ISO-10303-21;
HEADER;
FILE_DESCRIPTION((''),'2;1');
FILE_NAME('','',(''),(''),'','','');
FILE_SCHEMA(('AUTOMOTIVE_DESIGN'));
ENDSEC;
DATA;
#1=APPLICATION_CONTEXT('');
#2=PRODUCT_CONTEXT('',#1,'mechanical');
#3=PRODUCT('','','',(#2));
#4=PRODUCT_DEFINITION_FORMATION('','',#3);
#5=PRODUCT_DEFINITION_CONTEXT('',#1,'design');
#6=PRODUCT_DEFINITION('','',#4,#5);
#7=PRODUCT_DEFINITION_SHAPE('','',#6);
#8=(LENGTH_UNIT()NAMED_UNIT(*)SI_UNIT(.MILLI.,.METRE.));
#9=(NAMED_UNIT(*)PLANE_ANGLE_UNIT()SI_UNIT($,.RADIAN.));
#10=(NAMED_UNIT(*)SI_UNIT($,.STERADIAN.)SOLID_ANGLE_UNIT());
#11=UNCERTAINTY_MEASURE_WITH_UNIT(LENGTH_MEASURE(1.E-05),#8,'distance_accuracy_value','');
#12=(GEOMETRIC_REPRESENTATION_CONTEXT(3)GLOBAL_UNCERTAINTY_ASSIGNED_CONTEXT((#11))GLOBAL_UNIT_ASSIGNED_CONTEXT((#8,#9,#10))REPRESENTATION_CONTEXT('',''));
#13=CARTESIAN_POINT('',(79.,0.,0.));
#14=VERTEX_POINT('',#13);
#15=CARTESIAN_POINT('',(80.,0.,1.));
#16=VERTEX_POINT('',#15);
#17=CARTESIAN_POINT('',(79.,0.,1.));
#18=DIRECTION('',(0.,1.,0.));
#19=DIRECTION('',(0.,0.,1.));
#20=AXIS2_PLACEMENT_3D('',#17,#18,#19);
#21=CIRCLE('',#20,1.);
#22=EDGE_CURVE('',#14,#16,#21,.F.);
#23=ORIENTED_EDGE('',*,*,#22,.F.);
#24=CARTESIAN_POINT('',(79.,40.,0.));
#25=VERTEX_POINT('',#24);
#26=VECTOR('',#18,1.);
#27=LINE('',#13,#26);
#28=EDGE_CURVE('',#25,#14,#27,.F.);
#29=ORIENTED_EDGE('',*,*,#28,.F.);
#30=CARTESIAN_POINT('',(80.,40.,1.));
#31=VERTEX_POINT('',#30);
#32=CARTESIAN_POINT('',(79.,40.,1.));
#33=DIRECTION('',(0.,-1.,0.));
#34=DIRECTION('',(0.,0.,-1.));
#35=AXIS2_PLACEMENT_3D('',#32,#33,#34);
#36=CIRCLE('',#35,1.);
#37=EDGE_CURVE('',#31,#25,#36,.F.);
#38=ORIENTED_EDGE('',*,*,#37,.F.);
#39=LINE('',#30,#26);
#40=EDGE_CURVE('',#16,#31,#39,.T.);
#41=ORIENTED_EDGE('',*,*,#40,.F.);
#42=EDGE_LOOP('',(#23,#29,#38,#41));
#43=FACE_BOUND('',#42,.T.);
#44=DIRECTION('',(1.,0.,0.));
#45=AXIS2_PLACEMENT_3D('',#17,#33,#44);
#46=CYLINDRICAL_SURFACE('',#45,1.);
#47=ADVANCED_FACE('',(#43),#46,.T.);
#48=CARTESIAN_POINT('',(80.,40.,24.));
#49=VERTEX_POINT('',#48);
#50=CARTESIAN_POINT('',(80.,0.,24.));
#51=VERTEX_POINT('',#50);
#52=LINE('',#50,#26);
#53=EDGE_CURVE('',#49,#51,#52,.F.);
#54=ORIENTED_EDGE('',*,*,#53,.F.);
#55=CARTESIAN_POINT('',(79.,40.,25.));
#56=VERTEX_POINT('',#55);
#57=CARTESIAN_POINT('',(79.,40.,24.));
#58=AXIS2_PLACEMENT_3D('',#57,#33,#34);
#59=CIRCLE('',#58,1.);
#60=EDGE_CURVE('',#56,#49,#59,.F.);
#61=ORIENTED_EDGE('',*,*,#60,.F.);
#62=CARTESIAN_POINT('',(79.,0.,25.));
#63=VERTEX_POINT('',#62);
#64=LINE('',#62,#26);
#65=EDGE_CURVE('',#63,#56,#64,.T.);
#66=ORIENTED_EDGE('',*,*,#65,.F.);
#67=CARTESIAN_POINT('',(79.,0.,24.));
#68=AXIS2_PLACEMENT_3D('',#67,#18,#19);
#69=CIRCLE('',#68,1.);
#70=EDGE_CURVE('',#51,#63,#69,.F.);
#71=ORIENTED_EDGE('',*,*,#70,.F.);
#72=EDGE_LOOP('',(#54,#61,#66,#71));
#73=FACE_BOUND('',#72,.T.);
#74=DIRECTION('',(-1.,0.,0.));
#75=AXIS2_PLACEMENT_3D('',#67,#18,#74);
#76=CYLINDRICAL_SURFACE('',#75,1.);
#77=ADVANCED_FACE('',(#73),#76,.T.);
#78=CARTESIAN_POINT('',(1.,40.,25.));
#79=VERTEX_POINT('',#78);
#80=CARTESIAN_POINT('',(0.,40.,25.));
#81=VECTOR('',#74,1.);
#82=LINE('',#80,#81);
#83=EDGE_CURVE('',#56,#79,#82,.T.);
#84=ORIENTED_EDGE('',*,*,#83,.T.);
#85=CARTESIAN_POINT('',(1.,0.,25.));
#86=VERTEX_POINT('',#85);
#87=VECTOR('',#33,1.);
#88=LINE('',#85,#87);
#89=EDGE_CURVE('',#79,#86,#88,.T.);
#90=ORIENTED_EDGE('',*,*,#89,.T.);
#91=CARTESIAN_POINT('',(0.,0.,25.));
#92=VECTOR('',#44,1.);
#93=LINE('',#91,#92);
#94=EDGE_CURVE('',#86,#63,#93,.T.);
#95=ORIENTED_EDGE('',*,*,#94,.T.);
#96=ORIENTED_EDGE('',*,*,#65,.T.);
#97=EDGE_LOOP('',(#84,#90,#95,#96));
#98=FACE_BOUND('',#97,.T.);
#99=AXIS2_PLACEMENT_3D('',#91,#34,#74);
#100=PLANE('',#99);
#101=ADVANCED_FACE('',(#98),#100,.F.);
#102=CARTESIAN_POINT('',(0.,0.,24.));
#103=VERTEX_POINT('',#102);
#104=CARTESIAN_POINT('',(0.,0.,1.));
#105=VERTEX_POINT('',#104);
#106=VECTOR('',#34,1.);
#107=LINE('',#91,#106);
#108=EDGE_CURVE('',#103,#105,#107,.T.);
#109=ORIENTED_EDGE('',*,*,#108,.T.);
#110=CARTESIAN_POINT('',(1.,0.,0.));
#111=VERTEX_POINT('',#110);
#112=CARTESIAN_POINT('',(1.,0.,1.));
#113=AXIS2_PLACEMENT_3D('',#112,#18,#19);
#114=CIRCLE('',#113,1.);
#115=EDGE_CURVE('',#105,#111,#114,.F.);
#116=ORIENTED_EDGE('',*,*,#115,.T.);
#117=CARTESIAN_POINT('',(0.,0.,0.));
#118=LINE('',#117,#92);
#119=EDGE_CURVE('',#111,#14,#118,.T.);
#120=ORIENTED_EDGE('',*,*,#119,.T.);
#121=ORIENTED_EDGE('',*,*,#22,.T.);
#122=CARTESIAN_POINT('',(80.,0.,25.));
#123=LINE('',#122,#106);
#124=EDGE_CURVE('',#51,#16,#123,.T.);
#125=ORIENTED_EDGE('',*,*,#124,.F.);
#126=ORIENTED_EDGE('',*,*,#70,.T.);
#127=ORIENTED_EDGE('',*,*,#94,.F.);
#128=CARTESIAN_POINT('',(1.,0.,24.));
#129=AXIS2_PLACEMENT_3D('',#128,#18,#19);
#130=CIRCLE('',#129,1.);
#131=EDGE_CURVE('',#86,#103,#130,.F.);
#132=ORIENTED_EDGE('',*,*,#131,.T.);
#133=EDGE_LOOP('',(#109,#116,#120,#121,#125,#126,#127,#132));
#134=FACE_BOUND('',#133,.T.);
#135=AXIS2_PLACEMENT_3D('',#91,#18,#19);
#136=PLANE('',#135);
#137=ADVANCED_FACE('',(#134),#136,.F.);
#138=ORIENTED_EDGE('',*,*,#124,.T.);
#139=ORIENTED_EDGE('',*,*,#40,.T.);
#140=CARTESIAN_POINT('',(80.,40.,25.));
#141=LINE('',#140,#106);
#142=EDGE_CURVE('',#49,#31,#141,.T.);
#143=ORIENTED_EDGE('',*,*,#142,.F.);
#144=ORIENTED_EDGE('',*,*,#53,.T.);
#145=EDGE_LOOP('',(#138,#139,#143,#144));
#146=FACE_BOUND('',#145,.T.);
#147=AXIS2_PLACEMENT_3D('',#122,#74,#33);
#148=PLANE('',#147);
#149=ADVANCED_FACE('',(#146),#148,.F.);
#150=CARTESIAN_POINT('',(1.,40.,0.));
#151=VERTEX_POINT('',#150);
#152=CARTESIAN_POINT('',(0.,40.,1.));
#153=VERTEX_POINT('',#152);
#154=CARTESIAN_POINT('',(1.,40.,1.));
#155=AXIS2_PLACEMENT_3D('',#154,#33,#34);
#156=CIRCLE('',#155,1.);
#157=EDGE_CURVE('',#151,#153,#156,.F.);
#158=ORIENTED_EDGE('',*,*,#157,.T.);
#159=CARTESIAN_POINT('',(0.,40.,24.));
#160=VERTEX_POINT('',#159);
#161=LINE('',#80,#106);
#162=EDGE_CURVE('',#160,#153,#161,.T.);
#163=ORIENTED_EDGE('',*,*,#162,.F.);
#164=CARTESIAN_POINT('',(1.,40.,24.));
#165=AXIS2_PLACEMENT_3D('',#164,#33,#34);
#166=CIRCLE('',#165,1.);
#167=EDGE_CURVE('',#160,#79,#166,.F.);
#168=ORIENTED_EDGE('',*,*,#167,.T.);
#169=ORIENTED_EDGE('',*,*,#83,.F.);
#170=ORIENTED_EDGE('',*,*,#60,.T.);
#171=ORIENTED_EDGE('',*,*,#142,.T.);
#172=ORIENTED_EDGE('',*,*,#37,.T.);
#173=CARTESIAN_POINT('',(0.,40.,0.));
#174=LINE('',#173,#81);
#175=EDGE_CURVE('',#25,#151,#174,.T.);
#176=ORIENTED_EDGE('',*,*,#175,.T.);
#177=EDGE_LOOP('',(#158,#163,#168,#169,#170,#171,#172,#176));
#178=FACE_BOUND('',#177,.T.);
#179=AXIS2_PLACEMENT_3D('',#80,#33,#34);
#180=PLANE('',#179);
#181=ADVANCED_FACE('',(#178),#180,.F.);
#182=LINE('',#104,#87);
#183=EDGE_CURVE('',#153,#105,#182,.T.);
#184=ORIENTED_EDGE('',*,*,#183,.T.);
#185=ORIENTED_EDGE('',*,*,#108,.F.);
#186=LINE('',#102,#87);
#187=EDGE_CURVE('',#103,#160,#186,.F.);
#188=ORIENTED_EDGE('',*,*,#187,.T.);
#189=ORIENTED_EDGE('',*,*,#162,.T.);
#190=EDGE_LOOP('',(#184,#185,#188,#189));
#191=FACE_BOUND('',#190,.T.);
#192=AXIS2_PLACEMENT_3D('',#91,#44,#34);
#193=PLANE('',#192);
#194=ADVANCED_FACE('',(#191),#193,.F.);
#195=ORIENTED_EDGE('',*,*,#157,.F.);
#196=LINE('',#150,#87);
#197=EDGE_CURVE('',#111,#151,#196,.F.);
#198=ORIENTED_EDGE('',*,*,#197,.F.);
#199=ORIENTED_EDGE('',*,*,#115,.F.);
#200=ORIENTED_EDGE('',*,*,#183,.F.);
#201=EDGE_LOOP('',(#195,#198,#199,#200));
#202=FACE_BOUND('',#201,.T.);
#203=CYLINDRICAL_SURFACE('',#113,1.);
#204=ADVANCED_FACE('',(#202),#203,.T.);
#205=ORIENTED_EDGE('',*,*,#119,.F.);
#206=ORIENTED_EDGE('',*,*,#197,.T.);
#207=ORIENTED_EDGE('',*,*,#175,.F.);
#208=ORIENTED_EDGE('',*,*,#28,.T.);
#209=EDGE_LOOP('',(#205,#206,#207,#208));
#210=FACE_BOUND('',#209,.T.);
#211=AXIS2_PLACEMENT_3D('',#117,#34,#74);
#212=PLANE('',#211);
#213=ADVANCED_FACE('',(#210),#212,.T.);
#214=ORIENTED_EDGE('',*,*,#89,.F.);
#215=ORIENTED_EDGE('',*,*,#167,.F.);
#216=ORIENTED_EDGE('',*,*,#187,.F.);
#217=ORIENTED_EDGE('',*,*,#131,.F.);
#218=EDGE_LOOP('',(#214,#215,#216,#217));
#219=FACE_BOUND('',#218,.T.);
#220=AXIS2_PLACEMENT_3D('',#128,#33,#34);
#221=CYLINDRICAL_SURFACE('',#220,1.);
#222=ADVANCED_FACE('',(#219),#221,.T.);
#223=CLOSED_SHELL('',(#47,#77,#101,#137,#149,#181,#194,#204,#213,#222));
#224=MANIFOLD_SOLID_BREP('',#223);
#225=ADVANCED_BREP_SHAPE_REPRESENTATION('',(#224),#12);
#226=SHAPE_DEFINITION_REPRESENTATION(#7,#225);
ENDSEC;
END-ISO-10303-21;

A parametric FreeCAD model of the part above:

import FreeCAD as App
import Part
import Sketcher
from FreeCAD import Vector
Q = App.Units.Quantity


def edges_at(feature, points):
    """Names of the edges that pass closest to the given points."""
    edges = feature.Shape.Edges
    near = lambda p: min(range(len(edges)), key=lambda i: edges[i].distToShape(Part.Vertex(*p))[0])
    return sorted({f"Edge{near(p) + 1}" for p in points})

doc = App.newDocument("Part")
params = doc.addObject("Spreadsheet::Sheet", "Params")
for row, (alias, value) in enumerate([
    ("sketch1_width", "80 mm"),
    ("sketch1_height", "40 mm"),
    ("pad1_length", "25 mm"),
    ("fillet_radius", "1 mm"),
    ("fillet2_radius", "1 mm"),
], start=1):
    params.set(f"A{row}", alias)
    params.set(f"B{row}", "=" + value)
    params.setAlias(f"B{row}", alias)

body = doc.addObject("PartDesign::Body", "Body")

sketch1 = body.newObject("Sketcher::SketchObject", "Sketch")
sketch1.AttachmentSupport = (doc.getObject("XY_Plane"), [""])
sketch1.MapMode = "FlatFace"
sketch1.addGeometry([
    Part.LineSegment(Vector(0, 40, 0), Vector(0, 0, 0)),
    Part.LineSegment(Vector(0, 0, 0), Vector(80, 0, 0)),
    Part.LineSegment(Vector(80, 0, 0), Vector(80, 40, 0)),
    Part.LineSegment(Vector(80, 40, 0), Vector(0, 40, 0)),
], False)
sketch1.addConstraint([
    Sketcher.Constraint("Coincident", 0, 2, 1, 1),
    Sketcher.Constraint("Coincident", 1, 2, 2, 1),
    Sketcher.Constraint("Coincident", 2, 2, 3, 1),
    Sketcher.Constraint("Coincident", 3, 2, 0, 1),
    Sketcher.Constraint("Vertical", 0),
    Sketcher.Constraint("Horizontal", 1),
    Sketcher.Constraint("Vertical", 2),
    Sketcher.Constraint("Horizontal", 3),
    Sketcher.Constraint("Coincident", 0, 2, -1, 1),
    Sketcher.Constraint("DistanceX", 1, 1, 1, 2, Q("80 mm")),
    Sketcher.Constraint("DistanceY", 0, 2, 0, 1, Q("40 mm")),
])
sketch1.setExpression("Constraints[9]", "Params.sketch1_width")
sketch1.setExpression("Constraints[10]", "Params.sketch1_height")
pad1 = body.newObject("PartDesign::Pad", "Pad")
pad1.Profile = sketch1
pad1.setExpression("Length", "Params.pad1_length")
doc.recompute()

fillet = body.newObject("PartDesign::Fillet", "Fillet")
fillet.Base = (pad1, edges_at(pad1, [(0, 20, 25)]))
fillet.setExpression("Radius", "Params.fillet_radius")
doc.recompute()

fillet2 = body.newObject("PartDesign::Fillet", "Fillet001")
fillet2.Base = (fillet, edges_at(fillet, [(80, 20, 25), (80, 20, 0), (0, 20, 0)]))
fillet2.setExpression("Radius", "Params.fillet2_radius")

doc.recompute()
